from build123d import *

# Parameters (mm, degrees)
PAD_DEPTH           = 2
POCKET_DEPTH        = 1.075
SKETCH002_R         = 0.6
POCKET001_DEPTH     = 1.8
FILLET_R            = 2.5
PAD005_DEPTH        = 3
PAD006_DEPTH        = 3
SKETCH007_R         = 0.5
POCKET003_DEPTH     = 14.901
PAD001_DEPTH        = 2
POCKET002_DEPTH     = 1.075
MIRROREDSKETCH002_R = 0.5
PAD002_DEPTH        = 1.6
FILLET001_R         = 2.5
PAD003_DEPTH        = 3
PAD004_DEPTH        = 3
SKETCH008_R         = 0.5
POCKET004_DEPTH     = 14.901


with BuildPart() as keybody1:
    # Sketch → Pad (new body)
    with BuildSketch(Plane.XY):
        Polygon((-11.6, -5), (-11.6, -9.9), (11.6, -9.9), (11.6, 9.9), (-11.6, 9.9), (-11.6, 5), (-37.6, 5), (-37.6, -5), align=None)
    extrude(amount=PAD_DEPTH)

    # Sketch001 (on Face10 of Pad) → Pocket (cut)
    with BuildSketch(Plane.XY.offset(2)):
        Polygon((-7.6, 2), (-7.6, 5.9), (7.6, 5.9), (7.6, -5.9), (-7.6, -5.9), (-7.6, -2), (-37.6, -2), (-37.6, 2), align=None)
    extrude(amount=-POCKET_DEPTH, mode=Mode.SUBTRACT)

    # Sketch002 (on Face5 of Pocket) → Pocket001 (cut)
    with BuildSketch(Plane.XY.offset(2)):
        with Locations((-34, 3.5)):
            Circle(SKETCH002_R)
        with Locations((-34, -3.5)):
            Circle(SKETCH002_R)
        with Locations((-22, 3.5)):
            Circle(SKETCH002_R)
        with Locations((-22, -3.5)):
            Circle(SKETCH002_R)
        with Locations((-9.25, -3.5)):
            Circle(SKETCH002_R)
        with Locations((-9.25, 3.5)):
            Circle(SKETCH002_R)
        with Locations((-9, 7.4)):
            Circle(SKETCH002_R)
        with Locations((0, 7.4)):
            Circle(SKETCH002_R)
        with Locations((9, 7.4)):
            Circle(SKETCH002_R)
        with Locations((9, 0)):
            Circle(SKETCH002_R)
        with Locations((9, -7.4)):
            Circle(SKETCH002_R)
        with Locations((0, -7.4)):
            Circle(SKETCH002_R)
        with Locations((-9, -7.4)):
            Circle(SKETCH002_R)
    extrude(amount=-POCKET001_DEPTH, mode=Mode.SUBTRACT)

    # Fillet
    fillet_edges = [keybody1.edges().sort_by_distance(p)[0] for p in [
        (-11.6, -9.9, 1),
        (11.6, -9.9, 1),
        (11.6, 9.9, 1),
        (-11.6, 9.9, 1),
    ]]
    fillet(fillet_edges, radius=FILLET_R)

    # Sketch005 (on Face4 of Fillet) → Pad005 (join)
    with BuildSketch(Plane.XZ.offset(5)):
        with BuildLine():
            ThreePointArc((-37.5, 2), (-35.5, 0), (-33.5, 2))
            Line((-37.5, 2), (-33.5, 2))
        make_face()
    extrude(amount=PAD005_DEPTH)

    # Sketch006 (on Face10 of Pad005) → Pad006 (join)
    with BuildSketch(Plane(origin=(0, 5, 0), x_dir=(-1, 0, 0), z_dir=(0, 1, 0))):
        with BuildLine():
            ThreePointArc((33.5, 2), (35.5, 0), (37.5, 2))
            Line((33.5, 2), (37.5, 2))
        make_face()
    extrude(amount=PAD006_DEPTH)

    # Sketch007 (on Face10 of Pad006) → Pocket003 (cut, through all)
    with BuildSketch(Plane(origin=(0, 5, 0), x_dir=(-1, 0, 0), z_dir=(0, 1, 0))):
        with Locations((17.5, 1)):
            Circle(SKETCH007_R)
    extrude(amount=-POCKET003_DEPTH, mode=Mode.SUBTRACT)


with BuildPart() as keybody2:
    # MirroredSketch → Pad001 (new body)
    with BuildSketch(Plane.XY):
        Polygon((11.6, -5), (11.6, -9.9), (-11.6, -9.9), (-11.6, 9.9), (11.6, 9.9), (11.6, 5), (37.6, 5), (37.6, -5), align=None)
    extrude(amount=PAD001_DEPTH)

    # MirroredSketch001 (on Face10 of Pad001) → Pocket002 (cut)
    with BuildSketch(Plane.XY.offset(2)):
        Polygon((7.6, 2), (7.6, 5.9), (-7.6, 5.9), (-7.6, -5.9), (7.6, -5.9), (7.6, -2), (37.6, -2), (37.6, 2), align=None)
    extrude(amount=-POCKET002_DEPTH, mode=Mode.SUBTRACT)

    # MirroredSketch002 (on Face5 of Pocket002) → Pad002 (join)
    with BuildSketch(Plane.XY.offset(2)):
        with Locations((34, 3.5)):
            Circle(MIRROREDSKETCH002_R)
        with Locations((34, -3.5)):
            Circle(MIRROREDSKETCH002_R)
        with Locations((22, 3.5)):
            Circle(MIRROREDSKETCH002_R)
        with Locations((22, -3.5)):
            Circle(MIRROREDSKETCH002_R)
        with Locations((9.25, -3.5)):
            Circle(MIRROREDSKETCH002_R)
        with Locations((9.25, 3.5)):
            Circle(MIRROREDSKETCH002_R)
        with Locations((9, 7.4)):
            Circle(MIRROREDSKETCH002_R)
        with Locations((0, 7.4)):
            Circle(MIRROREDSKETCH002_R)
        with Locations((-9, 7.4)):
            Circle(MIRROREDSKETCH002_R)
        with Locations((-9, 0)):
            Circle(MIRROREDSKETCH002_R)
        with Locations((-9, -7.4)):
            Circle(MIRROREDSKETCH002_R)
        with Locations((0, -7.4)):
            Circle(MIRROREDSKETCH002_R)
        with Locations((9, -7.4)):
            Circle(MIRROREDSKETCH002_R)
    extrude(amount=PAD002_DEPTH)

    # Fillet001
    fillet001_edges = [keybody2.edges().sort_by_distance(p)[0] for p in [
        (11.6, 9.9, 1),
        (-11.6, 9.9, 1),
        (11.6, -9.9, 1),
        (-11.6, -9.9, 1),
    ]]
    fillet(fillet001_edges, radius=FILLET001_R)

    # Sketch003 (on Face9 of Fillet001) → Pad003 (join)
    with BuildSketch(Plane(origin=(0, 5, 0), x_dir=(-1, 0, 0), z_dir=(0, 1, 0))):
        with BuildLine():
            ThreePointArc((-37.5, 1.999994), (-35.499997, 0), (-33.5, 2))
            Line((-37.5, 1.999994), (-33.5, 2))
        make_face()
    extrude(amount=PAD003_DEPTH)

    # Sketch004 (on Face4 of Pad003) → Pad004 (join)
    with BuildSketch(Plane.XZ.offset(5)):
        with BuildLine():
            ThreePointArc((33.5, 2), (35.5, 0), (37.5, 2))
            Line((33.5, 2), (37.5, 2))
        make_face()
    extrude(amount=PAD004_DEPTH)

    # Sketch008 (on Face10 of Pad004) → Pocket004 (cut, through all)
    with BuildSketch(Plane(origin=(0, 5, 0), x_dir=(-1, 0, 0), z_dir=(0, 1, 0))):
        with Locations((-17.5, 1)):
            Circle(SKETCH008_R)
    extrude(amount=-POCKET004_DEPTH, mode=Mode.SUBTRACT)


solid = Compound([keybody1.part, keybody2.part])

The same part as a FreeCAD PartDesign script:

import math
import FreeCAD as App
import Part
import Sketcher
from FreeCAD import Vector


def edges_at(feature, points):
    """Names of the edges that pass closest to the given points."""
    edges = feature.Shape.Edges
    near = lambda p: min(range(len(edges)), key=lambda i: edges[i].distToShape(Part.Vertex(*p))[0])
    return sorted({f"Edge{near(p) + 1}" for p in points})

doc = App.newDocument("Part")
body = doc.addObject("PartDesign::Body", "Body")

# Sketch on XY plane
sketch1 = body.newObject("Sketcher::SketchObject", "Sketch")
sketch1.AttachmentSupport = (doc.getObject("XY_Plane"), [""])
sketch1.MapMode = "FlatFace"
sketch1.addGeometry([
    Part.LineSegment(Vector(-11.6, -5, 0), Vector(-11.6, -9.9, 0)),  # 0
    Part.LineSegment(Vector(-11.6, -9.9, 0), Vector(11.6, -9.9, 0)),  # 1
    Part.LineSegment(Vector(11.6, -9.9, 0), Vector(11.6, 9.9, 0)),  # 2
    Part.LineSegment(Vector(11.6, 9.9, 0), Vector(-11.6, 9.9, 0)),  # 3
    Part.LineSegment(Vector(-11.6, 9.9, 0), Vector(-11.6, 5, 0)),  # 4
    Part.LineSegment(Vector(-11.6, 5, 0), Vector(-37.6, 5, 0)),  # 5
    Part.LineSegment(Vector(-37.6, 5, 0), Vector(-37.6, -5, 0)),  # 6
    Part.LineSegment(Vector(-37.6, -5, 0), Vector(-11.6, -5, 0)),  # 7
], False)
sketch1.addConstraint([
    Sketcher.Constraint("Coincident", 0, 2, 1, 1),
    Sketcher.Constraint("Coincident", 1, 2, 2, 1),
    Sketcher.Constraint("Coincident", 2, 2, 3, 1),
    Sketcher.Constraint("Coincident", 3, 2, 4, 1),
    Sketcher.Constraint("Coincident", 4, 2, 5, 1),
    Sketcher.Constraint("Coincident", 5, 2, 6, 1),
    Sketcher.Constraint("Coincident", 6, 2, 7, 1),
    Sketcher.Constraint("Coincident", 7, 2, 0, 1),
    Sketcher.Constraint("Vertical", 0),
    Sketcher.Constraint("Horizontal", 1),
    Sketcher.Constraint("Vertical", 2),
    Sketcher.Constraint("Horizontal", 3),
    Sketcher.Constraint("Vertical", 4),
    Sketcher.Constraint("Horizontal", 5),
    Sketcher.Constraint("Vertical", 6),
    Sketcher.Constraint("Horizontal", 7),
    Sketcher.Constraint("Symmetric", 0, 2, 2, 2, -1, 1),
    Sketcher.Constraint("Symmetric", 4, 2, 7, 2, -1),
    Sketcher.Constraint("DistanceX", 5, 2, 5, 1, 26.0),
    Sketcher.Constraint("DistanceY", 6, 2, 6, 1, 10.0),
    Sketcher.Constraint("DistanceX", 1, 1, 1, 2, 23.2),
    Sketcher.Constraint("DistanceY", 0, 2, 0, 1, 4.9),
])
pad1 = body.newObject("PartDesign::Pad", "Pad")
pad1.Profile = sketch1
pad1.Length = 2

# Sketch on XY plane
sketch2 = body.newObject("Sketcher::SketchObject", "Sketch001")
sketch2.AttachmentSupport = (doc.getObject("XY_Plane"), [""])
sketch2.MapMode = "FlatFace"
sketch2.AttachmentOffset = App.Placement(Vector(0, 0, 2), App.Rotation())
sketch2.addGeometry([
    Part.LineSegment(Vector(-7.6, 5.9, 0), Vector(-7.6, 2, 0)),  # 0
    Part.LineSegment(Vector(-7.6, 2, 0), Vector(-37.6, 2, 0)),  # 1
    Part.LineSegment(Vector(-37.6, 2, 0), Vector(-37.6, -2, 0)),  # 2
    Part.LineSegment(Vector(-37.6, -2, 0), Vector(-7.6, -2, 0)),  # 3
    Part.LineSegment(Vector(-7.6, -2, 0), Vector(-7.6, -5.9, 0)),  # 4
    Part.LineSegment(Vector(-7.6, -5.9, 0), Vector(7.6, -5.9, 0)),  # 5
    Part.LineSegment(Vector(7.6, -5.9, 0), Vector(7.6, 5.9, 0)),  # 6
    Part.LineSegment(Vector(7.6, 5.9, 0), Vector(-7.6, 5.9, 0)),  # 7
], False)
sketch2.addConstraint([
    Sketcher.Constraint("Coincident", 0, 2, 1, 1),
    Sketcher.Constraint("Coincident", 1, 2, 2, 1),
    Sketcher.Constraint("Coincident", 2, 2, 3, 1),
    Sketcher.Constraint("Coincident", 3, 2, 4, 1),
    Sketcher.Constraint("Coincident", 4, 2, 5, 1),
    Sketcher.Constraint("Coincident", 5, 2, 6, 1),
    Sketcher.Constraint("Coincident", 6, 2, 7, 1),
    Sketcher.Constraint("Coincident", 7, 2, 0, 1),
    Sketcher.Constraint("Vertical", 0),
    Sketcher.Constraint("Horizontal", 1),
    Sketcher.Constraint("Vertical", 2),
    Sketcher.Constraint("Horizontal", 3),
    Sketcher.Constraint("Vertical", 4),
    Sketcher.Constraint("Horizontal", 5),
    Sketcher.Constraint("Vertical", 6),
    Sketcher.Constraint("Horizontal", 7),
    Sketcher.Constraint("Symmetric", 4, 2, 6, 2, -1, 1),
    Sketcher.Constraint("Symmetric", 0, 2, 3, 2, -1),
    Sketcher.Constraint("DistanceX", 1, 2, 1, 1, 30.0),
    Sketcher.Constraint("DistanceY", 2, 2, 2, 1, 4.0),
    Sketcher.Constraint("DistanceX", 5, 1, 5, 2, 15.2),
    Sketcher.Constraint("DistanceY", 0, 2, 0, 1, 3.9),
])
pocket1 = body.newObject("PartDesign::Pocket", "Pocket")
pocket1.Profile = sketch2
pocket1.Length = 1.075

# Sketch on XY plane
sketch3 = body.newObject("Sketcher::SketchObject", "Sketch002")
sketch3.AttachmentSupport = (doc.getObject("XY_Plane"), [""])
sketch3.MapMode = "FlatFace"
sketch3.AttachmentOffset = App.Placement(Vector(0, 0, 2), App.Rotation())
sketch3.addGeometry([
    Part.Circle(Vector(-34, 3.5, 0), Vector(0, 0, 1), 0.6),  # 0
    Part.Circle(Vector(-34, -3.5, 0), Vector(0, 0, 1), 0.6),  # 1
    Part.Circle(Vector(-22, 3.5, 0), Vector(0, 0, 1), 0.6),  # 2
    Part.Circle(Vector(-22, -3.5, 0), Vector(0, 0, 1), 0.6),  # 3
    Part.Circle(Vector(-9.2, -3.5, 0), Vector(0, 0, 1), 0.6),  # 4
    Part.Circle(Vector(-9.2, 3.5, 0), Vector(0, 0, 1), 0.6),  # 5
    Part.Circle(Vector(-9, 7.4, 0), Vector(0, 0, 1), 0.6),  # 6
    Part.Circle(Vector(0, 7.4, 0), Vector(0, 0, 1), 0.6),  # 7
    Part.Circle(Vector(9, 7.4, 0), Vector(0, 0, 1), 0.6),  # 8
    Part.Circle(Vector(9, 0, 0), Vector(0, 0, 1), 0.6),  # 9
    Part.Circle(Vector(9, -7.4, 0), Vector(0, 0, 1), 0.6),  # 10
    Part.Circle(Vector(0, -7.4, 0), Vector(0, 0, 1), 0.6),  # 11
    Part.Circle(Vector(-9, -7.4, 0), Vector(0, 0, 1), 0.6),  # 12
], False)
sketch3.addConstraint([
    Sketcher.Constraint("Equal", 0, 1),
    Sketcher.Constraint("Equal", 1, 2),
    Sketcher.Constraint("Equal", 2, 3),
    Sketcher.Constraint("Equal", 3, 4),
    Sketcher.Constraint("Equal", 4, 5),
    Sketcher.Constraint("Equal", 5, 6),
    Sketcher.Constraint("Equal", 6, 7),
    Sketcher.Constraint("Equal", 7, 8),
    Sketcher.Constraint("Equal", 8, 9),
    Sketcher.Constraint("Equal", 9, 10),
    Sketcher.Constraint("Equal", 10, 11),
    Sketcher.Constraint("Equal", 11, 12),
    Sketcher.Constraint("Symmetric", 6, 3, 10, 3, -1, 1),
    Sketcher.Constraint("Symmetric", 7, 3, 11, 3, -1, 1),
    Sketcher.Constraint("Symmetric", 8, 3, 12, 3, -1, 1),
    Sketcher.Constraint("Symmetric", 6, 3, 8, 3, -2),
    Sketcher.Constraint("Symmetric", 0, 3, 1, 3, -1),
    Sketcher.Constraint("Symmetric", 2, 3, 3, 3, -1),
    Sketcher.Constraint("Symmetric", 4, 3, 5, 3, -1),
    Sketcher.Constraint("PointOnObject", 7, 3, -2),
    Sketcher.Constraint("PointOnObject", 9, 3, -1),
    Sketcher.Constraint("Horizontal", 0, 3, 2, 3),
    Sketcher.Constraint("Horizontal", 3, 3, 4, 3),
    Sketcher.Constraint("Horizontal", 6, 3, 7, 3),
    Sketcher.Constraint("Vertical", 8, 3, 9, 3),
    Sketcher.Constraint("Diameter", 0, 1.2),
    Sketcher.Constraint("DistanceX", 0, 3, -1, 1, 34.0),
    Sketcher.Constraint("DistanceX", 2, 3, -1, 1, 22.0),
    Sketcher.Constraint("DistanceX", 6, 3, -1, 1, 9.0),
    Sketcher.Constraint("DistanceY", 1, 3, 0, 3, 7.0),
    Sketcher.Constraint("DistanceY", -1, 1, 6, 3, 7.4),
    Sketcher.Constraint("DistanceX", 4, 3, -1, 1, 9.25),
])
pocket2 = body.newObject("PartDesign::Pocket", "Pocket001")
pocket2.Profile = sketch3
pocket2.Length = 1.8
doc.recompute()

fillet = body.newObject("PartDesign::Fillet", "Fillet")
fillet.Base = (pocket2, edges_at(pocket2, [
    (-11.6, -9.9, 1),
    (11.6, -9.9, 1),
    (11.6, 9.9, 1),
    (-11.6, 9.9, 1),
]))
fillet.Radius = 2.5

# Sketch on XZ plane
sketch4 = body.newObject("Sketcher::SketchObject", "Sketch003")
sketch4.AttachmentSupport = (doc.getObject("XZ_Plane"), [""])
sketch4.MapMode = "FlatFace"
sketch4.AttachmentOffset = App.Placement(Vector(0, 0, 5), App.Rotation())
sketch4.addGeometry([
    Part.ArcOfCircle(Part.Circle(Vector(-35.5, 2, 0), Vector(0, 0, 1), 2), math.radians(180), math.radians(360)),
    Part.LineSegment(Vector(-33.5, 2, 0), Vector(-37.5, 2, 0)),
], False)
sketch4.addConstraint([
    Sketcher.Constraint("Coincident", 0, 1, 1, 2),
    Sketcher.Constraint("Coincident", 1, 1, 0, 2),
    Sketcher.Constraint("Horizontal", 1),
    Sketcher.Constraint("Radius", 0, 2.0),
    Sketcher.Constraint("DistanceY", -1, 1, 0, 3, 2.0),
    Sketcher.Constraint("DistanceY", -1, 1, 0, 1, 2.0),
    Sketcher.Constraint("DistanceX", 0, 3, -1, 1, 35.5),
])
pad2 = body.newObject("PartDesign::Pad", "Pad001")
pad2.Profile = sketch4
pad2.Length = 3

# Sketch on XZ plane
sketch5 = body.newObject("Sketcher::SketchObject", "Sketch004")
sketch5.AttachmentSupport = (doc.getObject("XZ_Plane"), [""])
sketch5.MapMode = "FlatFace"
sketch5.AttachmentOffset = App.Placement(Vector(0, 0, -5), App.Rotation())
sketch5.addGeometry([
    Part.ArcOfCircle(Part.Circle(Vector(-35.5, 2, 0), Vector(0, 0, 1), 2), math.radians(180), math.radians(360)),
    Part.LineSegment(Vector(-37.5, 2, 0), Vector(-33.5, 2, 0)),
], False)
sketch5.addConstraint([
    Sketcher.Constraint("Coincident", 0, 1, 1, 1),
    Sketcher.Constraint("Coincident", 1, 2, 0, 2),
    Sketcher.Constraint("Horizontal", 1),
    Sketcher.Constraint("Radius", 0, 2.0),
    Sketcher.Constraint("DistanceY", -1, 1, 0, 3, 2.0),
    Sketcher.Constraint("DistanceY", -1, 1, 0, 1, 2.0),
    Sketcher.Constraint("DistanceX", 0, 3, -1, 1, 35.5),
])
pad3 = body.newObject("PartDesign::Pad", "Pad002")
pad3.Profile = sketch5
pad3.Length = 3
pad3.Reversed = True

# Sketch on XZ plane
sketch6 = body.newObject("Sketcher::SketchObject", "Sketch005")
sketch6.AttachmentSupport = (doc.getObject("XZ_Plane"), [""])
sketch6.MapMode = "FlatFace"
sketch6.AttachmentOffset = App.Placement(Vector(0, 0, -5), App.Rotation())
sketch6.addGeometry(Part.Circle(Vector(-17.5, 1, 0), Vector(0, 0, 1), 0.5), False)
sketch6.addConstraint([
    Sketcher.Constraint("Diameter", 0, 1.0),
    Sketcher.Constraint("DistanceY", -1, 1, 0, 3, 1.0),
    Sketcher.Constraint("DistanceX", 0, 3, -1, 1, 17.5),
])
pocket3 = body.newObject("PartDesign::Pocket", "Pocket002")
pocket3.Profile = sketch6
pocket3.Type = "ThroughAll"
pocket3.Reversed = True
body2 = doc.addObject("PartDesign::Body", "Body001")

# Sketch on XY plane
sketch7 = body2.newObject("Sketcher::SketchObject", "Sketch006")
sketch7.AttachmentSupport = (doc.getObject("XY_Plane001"), [""])
sketch7.MapMode = "FlatFace"
sketch7.addGeometry([
    Part.LineSegment(Vector(11.6, -9.9, 0), Vector(11.6, -5, 0)),  # 0
    Part.LineSegment(Vector(11.6, -5, 0), Vector(37.6, -5, 0)),  # 1
    Part.LineSegment(Vector(37.6, -5, 0), Vector(37.6, 5, 0)),  # 2
    Part.LineSegment(Vector(37.6, 5, 0), Vector(11.6, 5, 0)),  # 3
    Part.LineSegment(Vector(11.6, 5, 0), Vector(11.6, 9.9, 0)),  # 4
    Part.LineSegment(Vector(11.6, 9.9, 0), Vector(-11.6, 9.9, 0)),  # 5
    Part.LineSegment(Vector(-11.6, 9.9, 0), Vector(-11.6, -9.9, 0)),  # 6
    Part.LineSegment(Vector(-11.6, -9.9, 0), Vector(11.6, -9.9, 0)),  # 7
], False)
sketch7.addConstraint([
    Sketcher.Constraint("Coincident", 0, 2, 1, 1),
    Sketcher.Constraint("Coincident", 1, 2, 2, 1),
    Sketcher.Constraint("Coincident", 2, 2, 3, 1),
    Sketcher.Constraint("Coincident", 3, 2, 4, 1),
    Sketcher.Constraint("Coincident", 4, 2, 5, 1),
    Sketcher.Constraint("Coincident", 5, 2, 6, 1),
    Sketcher.Constraint("Coincident", 6, 2, 7, 1),
    Sketcher.Constraint("Coincident", 7, 2, 0, 1),
    Sketcher.Constraint("Vertical", 0),
    Sketcher.Constraint("Horizontal", 1),
    Sketcher.Constraint("Vertical", 2),
    Sketcher.Constraint("Horizontal", 3),
    Sketcher.Constraint("Vertical", 4),
    Sketcher.Constraint("Horizontal", 5),
    Sketcher.Constraint("Vertical", 6),
    Sketcher.Constraint("Horizontal", 7),
    Sketcher.Constraint("Symmetric", 4, 2, 6, 2, -1, 1),
    Sketcher.Constraint("Symmetric", 0, 2, 3, 2, -1),
    Sketcher.Constraint("DistanceX", 1, 1, 1, 2, 26.0),
    Sketcher.Constraint("DistanceY", 2, 1, 2, 2, 10.0),
    Sketcher.Constraint("DistanceX", 5, 2, 5, 1, 23.2),
    Sketcher.Constraint("DistanceY", 0, 1, 0, 2, 4.9),
])
pad4 = body2.newObject("PartDesign::Pad", "Pad003")
pad4.Profile = sketch7
pad4.Length = 2

# Sketch on XY plane
sketch8 = body2.newObject("Sketcher::SketchObject", "Sketch007")
sketch8.AttachmentSupport = (doc.getObject("XY_Plane001"), [""])
sketch8.MapMode = "FlatFace"
sketch8.AttachmentOffset = App.Placement(Vector(0, 0, 2), App.Rotation())
sketch8.addGeometry([
    Part.LineSegment(Vector(7.6, 2, 0), Vector(7.6, 5.9, 0)),  # 0
    Part.LineSegment(Vector(7.6, 5.9, 0), Vector(-7.6, 5.9, 0)),  # 1
    Part.LineSegment(Vector(-7.6, 5.9, 0), Vector(-7.6, -5.9, 0)),  # 2
    Part.LineSegment(Vector(-7.6, -5.9, 0), Vector(7.6, -5.9, 0)),  # 3
    Part.LineSegment(Vector(7.6, -5.9, 0), Vector(7.6, -2, 0)),  # 4
    Part.LineSegment(Vector(7.6, -2, 0), Vector(37.6, -2, 0)),  # 5
    Part.LineSegment(Vector(37.6, -2, 0), Vector(37.6, 2, 0)),  # 6
    Part.LineSegment(Vector(37.6, 2, 0), Vector(7.6, 2, 0)),  # 7
], False)
sketch8.addConstraint([
    Sketcher.Constraint("Coincident", 0, 2, 1, 1),
    Sketcher.Constraint("Coincident", 1, 2, 2, 1),
    Sketcher.Constraint("Coincident", 2, 2, 3, 1),
    Sketcher.Constraint("Coincident", 3, 2, 4, 1),
    Sketcher.Constraint("Coincident", 4, 2, 5, 1),
    Sketcher.Constraint("Coincident", 5, 2, 6, 1),
    Sketcher.Constraint("Coincident", 6, 2, 7, 1),
    Sketcher.Constraint("Coincident", 7, 2, 0, 1),
    Sketcher.Constraint("Vertical", 0),
    Sketcher.Constraint("Horizontal", 1),
    Sketcher.Constraint("Vertical", 2),
    Sketcher.Constraint("Horizontal", 3),
    Sketcher.Constraint("Vertical", 4),
    Sketcher.Constraint("Horizontal", 5),
    Sketcher.Constraint("Vertical", 6),
    Sketcher.Constraint("Horizontal", 7),
    Sketcher.Constraint("Symmetric", 0, 2, 2, 2, -1, 1),
    Sketcher.Constraint("Symmetric", 4, 2, 7, 2, -1),
    Sketcher.Constraint("DistanceX", 5, 1, 5, 2, 30.0),
    Sketcher.Constraint("DistanceY", 6, 1, 6, 2, 4.0),
    Sketcher.Constraint("DistanceX", 1, 2, 1, 1, 15.2),
    Sketcher.Constraint("DistanceY", 0, 1, 0, 2, 3.9),
])
pocket4 = body2.newObject("PartDesign::Pocket", "Pocket003")
pocket4.Profile = sketch8
pocket4.Length = 1.075

# Sketch on XY plane
sketch9 = body2.newObject("Sketcher::SketchObject", "Sketch008")
sketch9.AttachmentSupport = (doc.getObject("XY_Plane001"), [""])
sketch9.MapMode = "FlatFace"
sketch9.AttachmentOffset = App.Placement(Vector(0, 0, 2), App.Rotation())
sketch9.addGeometry([
    Part.Circle(Vector(34, 3.5, 0), Vector(0, 0, 1), 0.5),  # 0
    Part.Circle(Vector(34, -3.5, 0), Vector(0, 0, 1), 0.5),  # 1
    Part.Circle(Vector(22, 3.5, 0), Vector(0, 0, 1), 0.5),  # 2
    Part.Circle(Vector(22, -3.5, 0), Vector(0, 0, 1), 0.5),  # 3
    Part.Circle(Vector(9.2, -3.5, 0), Vector(0, 0, 1), 0.5),  # 4
    Part.Circle(Vector(9.2, 3.5, 0), Vector(0, 0, 1), 0.5),  # 5
    Part.Circle(Vector(9, 7.4, 0), Vector(0, 0, 1), 0.5),  # 6
    Part.Circle(Vector(0, 7.4, 0), Vector(0, 0, 1), 0.5),  # 7
    Part.Circle(Vector(-9, 7.4, 0), Vector(0, 0, 1), 0.5),  # 8
    Part.Circle(Vector(-9, 0, 0), Vector(0, 0, 1), 0.5),  # 9
    Part.Circle(Vector(-9, -7.4, 0), Vector(0, 0, 1), 0.5),  # 10
    Part.Circle(Vector(0, -7.4, 0), Vector(0, 0, 1), 0.5),  # 11
    Part.Circle(Vector(9, -7.4, 0), Vector(0, 0, 1), 0.5),  # 12
], False)
sketch9.addConstraint([
    Sketcher.Constraint("Equal", 0, 1),
    Sketcher.Constraint("Equal", 1, 2),
    Sketcher.Constraint("Equal", 2, 3),
    Sketcher.Constraint("Equal", 3, 4),
    Sketcher.Constraint("Equal", 4, 5),
    Sketcher.Constraint("Equal", 5, 6),
    Sketcher.Constraint("Equal", 6, 7),
    Sketcher.Constraint("Equal", 7, 8),
    Sketcher.Constraint("Equal", 8, 9),
    Sketcher.Constraint("Equal", 9, 10),
    Sketcher.Constraint("Equal", 10, 11),
    Sketcher.Constraint("Equal", 11, 12),
    Sketcher.Constraint("Symmetric", 6, 3, 10, 3, -1, 1),
    Sketcher.Constraint("Symmetric", 7, 3, 11, 3, -1, 1),
    Sketcher.Constraint("Symmetric", 8, 3, 12, 3, -1, 1),
    Sketcher.Constraint("Symmetric", 6, 3, 8, 3, -2),
    Sketcher.Constraint("Symmetric", 0, 3, 1, 3, -1),
    Sketcher.Constraint("Symmetric", 2, 3, 3, 3, -1),
    Sketcher.Constraint("Symmetric", 4, 3, 5, 3, -1),
    Sketcher.Constraint("PointOnObject", 7, 3, -2),
    Sketcher.Constraint("PointOnObject", 9, 3, -1),
    Sketcher.Constraint("Horizontal", 0, 3, 2, 3),
    Sketcher.Constraint("Horizontal", 3, 3, 4, 3),
    Sketcher.Constraint("Horizontal", 6, 3, 7, 3),
    Sketcher.Constraint("Vertical", 8, 3, 9, 3),
    Sketcher.Constraint("Diameter", 0, 1.0),
    Sketcher.Constraint("DistanceX", -1, 1, 0, 3, 34.0),
    Sketcher.Constraint("DistanceX", -1, 1, 2, 3, 22.0),
    Sketcher.Constraint("DistanceX", -1, 1, 6, 3, 9.0),
    Sketcher.Constraint("DistanceY", 1, 3, 0, 3, 7.0),
    Sketcher.Constraint("DistanceY", -1, 1, 6, 3, 7.4),
    Sketcher.Constraint("DistanceX", -1, 1, 4, 3, 9.25),
])
pad5 = body2.newObject("PartDesign::Pad", "Pad004")
pad5.Profile = sketch9
pad5.Length = 1.6
doc.recompute()

fillet2 = body2.newObject("PartDesign::Fillet", "Fillet001")
fillet2.Base = (pad5, edges_at(pad5, [
    (11.6, 9.9, 1),
    (-11.6, 9.9, 1),
    (11.6, -9.9, 1),
    (-11.6, -9.9, 1),
]))
fillet2.Radius = 2.5

# Sketch on XZ plane
sketch10 = body2.newObject("Sketcher::SketchObject", "Sketch009")
sketch10.AttachmentSupport = (doc.getObject("XZ_Plane001"), [""])
sketch10.MapMode = "FlatFace"
sketch10.AttachmentOffset = App.Placement(Vector(0, 0, -5), App.Rotation())
sketch10.addGeometry([
    Part.ArcOfCircle(Part.Circle(Vector(35.5, 2, 0), Vector(0, 0, 1), 2), math.radians(180), math.radians(360)),
    Part.LineSegment(Vector(33.5, 2, 0), Vector(37.5, 2, 0)),
], False)
sketch10.addConstraint([
    Sketcher.Constraint("Coincident", 0, 1, 1, 1),
    Sketcher.Constraint("Coincident", 1, 2, 0, 2),
    Sketcher.Constraint("Radius", 0, 2.0),
    Sketcher.Constraint("DistanceY", -1, 1, 0, 3, 2.0),
    Sketcher.Constraint("DistanceY", -1, 1, 0, 1, 2.0),
    Sketcher.Constraint("DistanceX", -1, 1, 0, 3, 35.5),
    Sketcher.Constraint("DistanceY", -1, 1, 1, 2, 1.999994),
])
pad6 = body2.newObject("PartDesign::Pad", "Pad005")
pad6.Profile = sketch10
pad6.Length = 3
pad6.Reversed = True

# Sketch on XZ plane
sketch11 = body2.newObject("Sketcher::SketchObject", "Sketch010")
sketch11.AttachmentSupport = (doc.getObject("XZ_Plane001"), [""])
sketch11.MapMode = "FlatFace"
sketch11.AttachmentOffset = App.Placement(Vector(0, 0, 5), App.Rotation())
sketch11.addGeometry([
    Part.ArcOfCircle(Part.Circle(Vector(35.5, 2, 0), Vector(0, 0, 1), 2), math.radians(180), math.radians(360)),
    Part.LineSegment(Vector(37.5, 2, 0), Vector(33.5, 2, 0)),
], False)
sketch11.addConstraint([
    Sketcher.Constraint("Coincident", 0, 1, 1, 2),
    Sketcher.Constraint("Coincident", 1, 1, 0, 2),
    Sketcher.Constraint("Horizontal", 1),
    Sketcher.Constraint("Radius", 0, 2.0),
    Sketcher.Constraint("DistanceY", -1, 1, 0, 3, 2.0),
    Sketcher.Constraint("DistanceY", -1, 1, 0, 1, 2.0),
    Sketcher.Constraint("DistanceX", -1, 1, 0, 3, 35.5),
])
pad7 = body2.newObject("PartDesign::Pad", "Pad006")
pad7.Profile = sketch11
pad7.Length = 3

# Sketch on XZ plane
sketch12 = body2.newObject("Sketcher::SketchObject", "Sketch011")
sketch12.AttachmentSupport = (doc.getObject("XZ_Plane001"), [""])
sketch12.MapMode = "FlatFace"
sketch12.AttachmentOffset = App.Placement(Vector(0, 0, -5), App.Rotation())
sketch12.addGeometry(Part.Circle(Vector(17.5, 1, 0), Vector(0, 0, 1), 0.5), False)
sketch12.addConstraint([
    Sketcher.Constraint("Diameter", 0, 1.0),
    Sketcher.Constraint("DistanceY", -1, 1, 0, 3, 1.0),
    Sketcher.Constraint("DistanceX", -1, 1, 0, 3, 17.5),
])
pocket5 = body2.newObject("PartDesign::Pocket", "Pocket004")
pocket5.Profile = sketch12
pocket5.Type = "ThroughAll"
pocket5.Reversed = True

doc.recompute()
